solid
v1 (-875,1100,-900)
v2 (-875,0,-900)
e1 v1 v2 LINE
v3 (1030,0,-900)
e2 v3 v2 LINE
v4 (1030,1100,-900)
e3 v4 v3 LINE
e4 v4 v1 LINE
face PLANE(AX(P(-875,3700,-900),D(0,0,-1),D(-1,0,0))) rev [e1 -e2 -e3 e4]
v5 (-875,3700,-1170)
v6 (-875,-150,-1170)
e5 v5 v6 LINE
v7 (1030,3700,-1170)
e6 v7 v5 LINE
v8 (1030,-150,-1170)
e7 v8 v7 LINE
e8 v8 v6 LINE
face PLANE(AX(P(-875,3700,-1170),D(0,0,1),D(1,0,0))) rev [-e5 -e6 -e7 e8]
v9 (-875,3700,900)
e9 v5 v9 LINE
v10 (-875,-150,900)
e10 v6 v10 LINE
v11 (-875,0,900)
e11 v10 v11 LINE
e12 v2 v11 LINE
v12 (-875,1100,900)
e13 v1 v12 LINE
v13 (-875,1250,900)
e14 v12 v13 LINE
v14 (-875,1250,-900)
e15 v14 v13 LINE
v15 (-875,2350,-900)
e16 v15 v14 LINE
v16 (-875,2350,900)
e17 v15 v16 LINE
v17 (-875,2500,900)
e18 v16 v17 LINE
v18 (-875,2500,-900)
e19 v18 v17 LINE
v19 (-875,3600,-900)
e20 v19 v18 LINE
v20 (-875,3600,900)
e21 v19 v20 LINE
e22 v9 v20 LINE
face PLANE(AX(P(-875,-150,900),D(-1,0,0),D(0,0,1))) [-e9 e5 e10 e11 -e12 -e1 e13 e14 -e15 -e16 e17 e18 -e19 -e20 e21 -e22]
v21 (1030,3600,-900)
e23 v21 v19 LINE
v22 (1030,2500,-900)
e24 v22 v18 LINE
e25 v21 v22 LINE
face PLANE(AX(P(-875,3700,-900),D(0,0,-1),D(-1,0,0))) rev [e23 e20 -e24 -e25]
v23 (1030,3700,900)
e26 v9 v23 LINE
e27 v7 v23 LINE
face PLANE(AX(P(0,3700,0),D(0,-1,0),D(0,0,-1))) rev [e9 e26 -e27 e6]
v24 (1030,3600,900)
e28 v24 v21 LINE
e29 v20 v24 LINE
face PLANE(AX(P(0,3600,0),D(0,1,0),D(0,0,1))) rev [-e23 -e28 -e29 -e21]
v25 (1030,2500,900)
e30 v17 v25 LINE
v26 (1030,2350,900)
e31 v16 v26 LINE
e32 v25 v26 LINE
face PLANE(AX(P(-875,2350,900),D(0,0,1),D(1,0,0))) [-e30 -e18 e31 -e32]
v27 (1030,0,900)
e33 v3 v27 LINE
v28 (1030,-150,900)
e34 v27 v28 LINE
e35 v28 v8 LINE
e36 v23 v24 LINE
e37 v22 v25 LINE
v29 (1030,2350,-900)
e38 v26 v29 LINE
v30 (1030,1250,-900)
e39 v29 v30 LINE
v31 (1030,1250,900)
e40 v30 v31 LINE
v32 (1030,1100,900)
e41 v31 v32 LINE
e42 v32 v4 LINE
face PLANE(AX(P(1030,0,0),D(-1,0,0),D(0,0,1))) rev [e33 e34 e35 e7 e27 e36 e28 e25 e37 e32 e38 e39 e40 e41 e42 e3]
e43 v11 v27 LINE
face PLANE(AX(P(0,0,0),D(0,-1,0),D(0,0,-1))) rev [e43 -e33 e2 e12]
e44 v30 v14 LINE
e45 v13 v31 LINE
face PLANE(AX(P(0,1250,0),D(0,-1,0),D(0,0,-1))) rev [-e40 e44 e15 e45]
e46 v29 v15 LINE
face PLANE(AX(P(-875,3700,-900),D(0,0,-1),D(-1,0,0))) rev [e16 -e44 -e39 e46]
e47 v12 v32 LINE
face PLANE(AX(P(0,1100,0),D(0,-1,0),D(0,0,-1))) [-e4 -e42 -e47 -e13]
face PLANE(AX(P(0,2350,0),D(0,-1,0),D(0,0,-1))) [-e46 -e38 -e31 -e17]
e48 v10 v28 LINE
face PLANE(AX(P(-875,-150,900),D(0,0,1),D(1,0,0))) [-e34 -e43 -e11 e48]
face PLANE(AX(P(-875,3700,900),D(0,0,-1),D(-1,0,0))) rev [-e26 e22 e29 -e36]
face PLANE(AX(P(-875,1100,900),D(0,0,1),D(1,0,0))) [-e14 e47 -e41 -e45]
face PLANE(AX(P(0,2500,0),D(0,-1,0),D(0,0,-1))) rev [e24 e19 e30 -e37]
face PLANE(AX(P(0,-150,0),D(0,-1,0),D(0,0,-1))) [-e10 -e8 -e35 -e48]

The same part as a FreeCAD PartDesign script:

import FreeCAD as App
import Part
import Sketcher
from FreeCAD import Vector
Q = App.Units.Quantity


def add_polygon(sketch, points):
    """Adds a closed chain of lines whose ends are joined by coincident constraints."""
    first, n = sketch.GeometryCount, len(points)
    for a, b in zip(points, points[1:] + points[:1]):
        sketch.addGeometry(Part.LineSegment(App.Vector(*a, 0), App.Vector(*b, 0)), False)
    for i in range(n):
        sketch.addConstraint(Sketcher.Constraint("Coincident", first + i, 2, first + (i + 1) % n, 1))

doc = App.newDocument("Part")
body = doc.addObject("PartDesign::Body", "Body")

sketch1 = doc.addObject("Sketcher::SketchObject", "Sketch")
body.addObject(sketch1)
sketch1.AttachmentSupport = (doc.XZ_Plane, [""])
sketch1.MapMode = "FlatFace"
add_polygon(sketch1, [(-875, -900), (-875, 900), (875, 900), (875, -900)])
sketch1.addConstraint([
    Sketcher.Constraint("Vertical", 0),
    Sketcher.Constraint("Horizontal", 1),
    Sketcher.Constraint("Vertical", 2),
    Sketcher.Constraint("Horizontal", 3),
    Sketcher.Constraint("Symmetric", 0, 2, 2, 2, -1, 1),
    Sketcher.Constraint("DistanceX", 1, 1, 1, 2, Q("1750 mm")),
    Sketcher.Constraint("DistanceY", 0, 1, 0, 2, Q("1800 mm")),
])
pad1 = doc.addObject("PartDesign::Pad", "Pad")
body.addObject(pad1)
pad1.Profile = sketch1
pad1.Length = 150
body2 = doc.addObject("PartDesign::Body", "Body001")

sketch2 = doc.addObject("Sketcher::SketchObject", "Sketch001")
body2.addObject(sketch2)
sketch2.AttachmentSupport = (doc.getObject("XZ_Plane001"), [""])
sketch2.MapMode = "FlatFace"
sketch2.AttachmentOffset = App.Placement(Vector(0, 0, -1250), App.Rotation())
add_polygon(sketch2, [(-875, -900), (-875, 900), (875, 900), (875, -900)])
sketch2.addConstraint([
    Sketcher.Constraint("Vertical", 0),
    Sketcher.Constraint("Horizontal", 1),
    Sketcher.Constraint("Vertical", 2),
    Sketcher.Constraint("Horizontal", 3),
    Sketcher.Constraint("Symmetric", 0, 2, 2, 2, -1, 1),
    Sketcher.Constraint("DistanceX", 1, 1, 1, 2, Q("1750 mm")),
    Sketcher.Constraint("DistanceY", 0, 1, 0, 2, Q("1800 mm")),
])
pad2 = doc.addObject("PartDesign::Pad", "Pad001")
body2.addObject(pad2)
pad2.Profile = sketch2
pad2.Length = 150
body3 = doc.addObject("PartDesign::Body", "Body002")

sketch3 = doc.addObject("Sketcher::SketchObject", "Sketch002")
body3.addObject(sketch3)
sketch3.AttachmentSupport = (doc.getObject("XZ_Plane002"), [""])
sketch3.MapMode = "FlatFace"
sketch3.AttachmentOffset = App.Placement(Vector(0, 0, -2500), App.Rotation())
add_polygon(sketch3, [(-875, -900), (-875, 900), (875, 900), (875, -900)])
sketch3.addConstraint([
    Sketcher.Constraint("Vertical", 0),
    Sketcher.Constraint("Horizontal", 1),
    Sketcher.Constraint("Vertical", 2),
    Sketcher.Constraint("Horizontal", 3),
    Sketcher.Constraint("Symmetric", 0, 2, 2, 2, -1, 1),
    Sketcher.Constraint("DistanceX", 1, 1, 1, 2, Q("1750 mm")),
    Sketcher.Constraint("DistanceY", 0, 1, 0, 2, Q("1800 mm")),
])
pad3 = doc.addObject("PartDesign::Pad", "Pad002")
body3.addObject(pad3)
pad3.Profile = sketch3
pad3.Length = 150
body4 = doc.addObject("PartDesign::Body", "Body003")

sketch4 = doc.addObject("Sketcher::SketchObject", "Sketch003")
body4.addObject(sketch4)
sketch4.AttachmentSupport = (doc.getObject("XZ_Plane003"), [""])
sketch4.MapMode = "FlatFace"
sketch4.AttachmentOffset = App.Placement(Vector(0, 0, -3600), App.Rotation())
add_polygon(sketch4, [(-875, -900), (-875, 900), (875, 900), (875, -900)])
sketch4.addConstraint([
    Sketcher.Constraint("Vertical", 0),
    Sketcher.Constraint("Horizontal", 1),
    Sketcher.Constraint("Vertical", 2),
    Sketcher.Constraint("Horizontal", 3),
    Sketcher.Constraint("Symmetric", 0, 2, 2, 2, -1, 1),
    Sketcher.Constraint("DistanceX", 1, 1, 1, 2, Q("1750 mm")),
    Sketcher.Constraint("DistanceY", 0, 1, 0, 2, Q("1800 mm")),
])
pad4 = doc.addObject("PartDesign::Pad", "Pad003")
body4.addObject(pad4)
pad4.Profile = sketch4
pad4.Length = 100
pad4.Reversed = True
body.AllowCompound = True
doc.recompute()

boolean = doc.addObject("PartDesign::Boolean", "Boolean")
body.addObject(boolean)
boolean.Type = "Fuse"
boolean.addObjects([body2])
doc.recompute()

boolean2 = doc.addObject("PartDesign::Boolean", "Boolean001")
body.addObject(boolean2)
boolean2.Type = "Fuse"
boolean2.addObjects([body3])
doc.recompute()

boolean3 = doc.addObject("PartDesign::Boolean", "Boolean002")
body.addObject(boolean3)
boolean3.Type = "Fuse"
boolean3.addObjects([body4])

sketch5 = doc.addObject("Sketcher::SketchObject", "Sketch004")
body.addObject(sketch5)
sketch5.AttachmentSupport = (doc.XZ_Plane, [""])
sketch5.MapMode = "FlatFace"
add_polygon(sketch5, [(-875, -1170), (-875, -900), (875, -900), (875, -1170)])
sketch5.addConstraint([
    Sketcher.Constraint("Vertical", 0),
    Sketcher.Constraint("Horizontal", 1),
    Sketcher.Constraint("Vertical", 2),
    Sketcher.Constraint("Horizontal", 3),
    Sketcher.Constraint("DistanceX", 1, 1, 1, 2, Q("1750 mm")),
    Sketcher.Constraint("DistanceY", 0, 1, 0, 2, Q("270 mm")),
    Sketcher.Constraint("DistanceX", 0, 2, -1, 1, Q("875 mm")),
    Sketcher.Constraint("DistanceY", 0, 2, -1, 1, Q("900 mm")),
])
pad5 = doc.addObject("PartDesign::Pad", "Pad004")
body.addObject(pad5)
pad5.Profile = sketch5
pad5.Length = 7400
pad5.Midplane = True

sketch6 = doc.addObject("Sketcher::SketchObject", "Sketch005")
body.addObject(sketch6)
sketch6.AttachmentSupport = (doc.XY_Plane, [""])
sketch6.MapMode = "FlatFace"
add_polygon(sketch6, [(-875, -150), (-875, -3700), (875, -3700), (875, -150)])
sketch6.addConstraint([
    Sketcher.Constraint("Vertical", 0),
    Sketcher.Constraint("Horizontal", 1),
    Sketcher.Constraint("Vertical", 2),
    Sketcher.Constraint("Horizontal", 3),
    Sketcher.Constraint("DistanceX", 1, 1, 1, 2, Q("1750 mm")),
    Sketcher.Constraint("DistanceY", 0, 2, 0, 1, Q("3550 mm")),
    Sketcher.Constraint("DistanceX", 0, 2, -1, 1, Q("875 mm")),
    Sketcher.Constraint("DistanceY", 0, 2, -1, 1, Q("3700 mm")),
])
pocket1 = doc.addObject("PartDesign::Pocket", "Pocket")
body.addObject(pocket1)
pocket1.Profile = sketch6
pocket1.Length = 7400

sketch7 = doc.addObject("Sketcher::SketchObject", "Sketch006")
body.addObject(sketch7)
sketch7.AttachmentSupport = (doc.YZ_Plane, [""])
sketch7.MapMode = "FlatFace"
add_polygon(sketch7, [(3700, -1170), (3700, 900), (3600, 900), (3600, -900), (2500, -900), (2500, 900), (2350, 900), (2350, -900), (1250, -900), (1250, 900), (1100, 900), (1100, -900), (0, -900), (0, 900), (-150, 900), (-150, -1170)])
sketch7.addConstraint([
    Sketcher.Constraint("Vertical", 0),
    Sketcher.Constraint("Horizontal", 1),
    Sketcher.Constraint("Vertical", 2),
    Sketcher.Constraint("Horizontal", 3),
    Sketcher.Constraint("Vertical", 4),
    Sketcher.Constraint("Horizontal", 5),
    Sketcher.Constraint("Vertical", 6),
    Sketcher.Constraint("Horizontal", 7),
    Sketcher.Constraint("Vertical", 8),
    Sketcher.Constraint("Horizontal", 9),
    Sketcher.Constraint("Vertical", 10),
    Sketcher.Constraint("Horizontal", 11),
    Sketcher.Constraint("Vertical", 12),
    Sketcher.Constraint("Horizontal", 13),
    Sketcher.Constraint("Vertical", 14),
    Sketcher.Constraint("Horizontal", 15),
    Sketcher.Constraint("Symmetric", 11, 2, 12, 2, -1, 1),
    Sketcher.Constraint("Horizontal", 1, 2, 4, 2),
    Sketcher.Constraint("Horizontal", 3, 2, 6, 2),
    Sketcher.Constraint("Horizontal", 5, 2, 8, 2),
    Sketcher.Constraint("Horizontal", 7, 2, 10, 2),
    Sketcher.Constraint("Horizontal", 9, 2, 12, 2),
    Sketcher.Constraint("Equal", 3, 7),
    Sketcher.Constraint("Equal", 5, 9),
    Sketcher.Constraint("Equal", 7, 11),
    Sketcher.Constraint("Equal", 9, 13),
    Sketcher.Constraint("DistanceX", 1, 2, 1, 1, Q("100 mm")),
    Sketcher.Constraint("DistanceX", 3, 2, 3, 1, Q("1100 mm")),
    Sketcher.Constraint("DistanceX", 5, 2, 5, 1, Q("150 mm")),
    Sketcher.Constraint("DistanceY", 0, 1, 0, 2, Q("2070 mm")),
    Sketcher.Constraint("DistanceY", 2, 2, 2, 1, Q("1800 mm")),
])
pad6 = doc.addObject("PartDesign::Pad", "Pad005")
body.addObject(pad6)
pad6.Profile = sketch7
pad6.Length = 1030

doc.recompute()
